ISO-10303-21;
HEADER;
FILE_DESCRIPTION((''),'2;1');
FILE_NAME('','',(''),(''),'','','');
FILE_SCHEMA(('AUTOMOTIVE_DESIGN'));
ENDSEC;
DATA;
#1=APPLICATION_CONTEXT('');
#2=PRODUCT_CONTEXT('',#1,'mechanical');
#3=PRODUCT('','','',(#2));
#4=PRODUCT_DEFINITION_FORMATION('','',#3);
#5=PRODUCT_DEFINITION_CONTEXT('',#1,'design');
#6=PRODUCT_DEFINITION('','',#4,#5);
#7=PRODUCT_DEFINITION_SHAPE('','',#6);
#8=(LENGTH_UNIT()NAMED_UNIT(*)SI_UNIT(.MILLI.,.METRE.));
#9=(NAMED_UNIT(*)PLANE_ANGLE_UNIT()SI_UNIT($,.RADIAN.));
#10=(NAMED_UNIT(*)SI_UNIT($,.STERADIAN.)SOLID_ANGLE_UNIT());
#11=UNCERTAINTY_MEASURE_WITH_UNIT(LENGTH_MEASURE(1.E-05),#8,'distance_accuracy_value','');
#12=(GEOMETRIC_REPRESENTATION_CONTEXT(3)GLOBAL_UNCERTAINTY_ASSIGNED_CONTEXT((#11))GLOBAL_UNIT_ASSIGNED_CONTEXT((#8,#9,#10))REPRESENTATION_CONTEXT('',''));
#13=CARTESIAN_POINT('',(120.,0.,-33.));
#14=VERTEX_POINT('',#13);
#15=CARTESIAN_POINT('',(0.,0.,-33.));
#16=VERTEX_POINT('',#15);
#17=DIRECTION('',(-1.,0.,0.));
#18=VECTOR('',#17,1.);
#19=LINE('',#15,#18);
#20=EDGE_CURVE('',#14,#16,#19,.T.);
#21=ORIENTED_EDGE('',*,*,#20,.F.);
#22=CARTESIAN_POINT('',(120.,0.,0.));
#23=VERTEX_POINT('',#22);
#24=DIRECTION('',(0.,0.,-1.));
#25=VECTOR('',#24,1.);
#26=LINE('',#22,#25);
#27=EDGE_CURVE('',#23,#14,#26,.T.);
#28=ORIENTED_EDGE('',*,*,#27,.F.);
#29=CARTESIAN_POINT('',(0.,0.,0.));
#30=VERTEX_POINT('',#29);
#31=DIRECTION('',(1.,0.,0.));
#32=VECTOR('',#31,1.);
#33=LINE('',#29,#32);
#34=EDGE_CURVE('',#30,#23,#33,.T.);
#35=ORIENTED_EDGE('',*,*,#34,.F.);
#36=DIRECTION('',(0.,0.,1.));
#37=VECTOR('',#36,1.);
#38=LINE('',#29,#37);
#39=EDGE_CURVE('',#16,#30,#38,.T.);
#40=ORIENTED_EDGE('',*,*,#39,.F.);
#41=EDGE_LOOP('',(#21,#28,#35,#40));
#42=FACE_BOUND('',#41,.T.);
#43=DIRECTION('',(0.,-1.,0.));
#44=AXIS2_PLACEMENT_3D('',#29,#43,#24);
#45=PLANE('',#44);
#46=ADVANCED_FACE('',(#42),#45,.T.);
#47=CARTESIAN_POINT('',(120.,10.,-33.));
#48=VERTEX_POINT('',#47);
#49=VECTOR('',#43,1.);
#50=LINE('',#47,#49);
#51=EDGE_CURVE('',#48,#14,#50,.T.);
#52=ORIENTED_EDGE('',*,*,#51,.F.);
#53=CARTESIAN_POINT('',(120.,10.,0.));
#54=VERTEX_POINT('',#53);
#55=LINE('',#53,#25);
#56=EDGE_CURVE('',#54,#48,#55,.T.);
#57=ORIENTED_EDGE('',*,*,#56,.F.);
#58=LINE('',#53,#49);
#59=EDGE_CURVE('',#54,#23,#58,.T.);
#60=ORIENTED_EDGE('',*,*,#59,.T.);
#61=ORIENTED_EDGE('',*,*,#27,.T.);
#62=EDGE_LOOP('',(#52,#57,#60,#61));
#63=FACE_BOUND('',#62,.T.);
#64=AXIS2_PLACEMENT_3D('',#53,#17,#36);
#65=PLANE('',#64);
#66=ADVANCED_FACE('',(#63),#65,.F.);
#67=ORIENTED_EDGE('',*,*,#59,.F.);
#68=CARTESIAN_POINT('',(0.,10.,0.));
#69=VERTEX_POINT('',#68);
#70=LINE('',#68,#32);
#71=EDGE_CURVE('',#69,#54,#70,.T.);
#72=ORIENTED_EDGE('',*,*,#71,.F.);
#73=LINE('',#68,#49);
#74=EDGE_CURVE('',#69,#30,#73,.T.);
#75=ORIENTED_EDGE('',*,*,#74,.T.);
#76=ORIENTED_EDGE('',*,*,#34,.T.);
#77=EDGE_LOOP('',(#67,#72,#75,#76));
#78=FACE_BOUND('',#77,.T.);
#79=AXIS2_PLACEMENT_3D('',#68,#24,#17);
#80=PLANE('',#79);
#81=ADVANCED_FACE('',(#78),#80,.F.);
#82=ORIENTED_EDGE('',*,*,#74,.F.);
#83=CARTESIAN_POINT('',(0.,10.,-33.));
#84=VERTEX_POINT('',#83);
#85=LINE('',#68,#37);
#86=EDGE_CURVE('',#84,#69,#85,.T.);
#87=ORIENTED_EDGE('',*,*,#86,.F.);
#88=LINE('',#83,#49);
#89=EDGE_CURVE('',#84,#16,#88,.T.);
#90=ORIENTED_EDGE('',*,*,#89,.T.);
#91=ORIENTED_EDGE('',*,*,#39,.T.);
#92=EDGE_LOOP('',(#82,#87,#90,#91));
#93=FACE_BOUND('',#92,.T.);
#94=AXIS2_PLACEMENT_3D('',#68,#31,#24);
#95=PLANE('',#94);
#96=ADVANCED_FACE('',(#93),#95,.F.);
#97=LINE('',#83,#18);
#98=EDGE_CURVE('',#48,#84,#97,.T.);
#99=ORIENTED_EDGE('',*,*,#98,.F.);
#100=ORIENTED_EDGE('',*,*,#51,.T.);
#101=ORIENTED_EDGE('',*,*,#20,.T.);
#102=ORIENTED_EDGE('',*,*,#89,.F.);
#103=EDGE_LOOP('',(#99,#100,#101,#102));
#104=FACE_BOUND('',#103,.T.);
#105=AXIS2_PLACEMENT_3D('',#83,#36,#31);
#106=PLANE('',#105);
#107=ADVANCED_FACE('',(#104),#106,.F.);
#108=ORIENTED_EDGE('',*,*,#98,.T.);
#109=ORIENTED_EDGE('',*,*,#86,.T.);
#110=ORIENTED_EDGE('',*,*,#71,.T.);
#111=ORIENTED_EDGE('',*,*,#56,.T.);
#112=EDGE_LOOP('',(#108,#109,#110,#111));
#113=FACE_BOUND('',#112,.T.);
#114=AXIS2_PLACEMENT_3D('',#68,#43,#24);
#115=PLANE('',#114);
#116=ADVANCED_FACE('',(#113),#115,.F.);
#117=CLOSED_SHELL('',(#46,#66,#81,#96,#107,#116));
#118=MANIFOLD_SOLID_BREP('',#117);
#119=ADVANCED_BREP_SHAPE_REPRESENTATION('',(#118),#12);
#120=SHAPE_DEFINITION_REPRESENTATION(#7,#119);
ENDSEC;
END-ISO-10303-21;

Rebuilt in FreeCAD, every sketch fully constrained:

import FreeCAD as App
import Part
import Sketcher
Q = App.Units.Quantity

doc = App.newDocument("Part")
params = doc.addObject("Spreadsheet::Sheet", "Params")
for row, (alias, value) in enumerate([
    ("sketch1_width", "120 mm"),
    ("sketch1_height", "33 mm"),
    ("pad1_length", "10 mm"),
], start=1):
    params.set(f"A{row}", alias)
    params.set(f"B{row}", "=" + value)
    params.setAlias(f"B{row}", alias)

body = doc.addObject("PartDesign::Body", "Body")

# Sketch on XZ plane
sketch1 = body.newObject("Sketcher::SketchObject", "Sketch")
sketch1.AttachmentSupport = (doc.getObject("XZ_Plane"), [""])
sketch1.MapMode = "FlatFace"
sketch1.addGeometry([
    Part.LineSegment(App.Vector(0, -33, 0), App.Vector(0, 0, 0)),
    Part.LineSegment(App.Vector(0, 0, 0), App.Vector(120, 0, 0)),
    Part.LineSegment(App.Vector(120, 0, 0), App.Vector(120, -33, 0)),
    Part.LineSegment(App.Vector(120, -33, 0), App.Vector(0, -33, 0)),
], False)
sketch1.addConstraint([
    Sketcher.Constraint("Coincident", 0, 2, 1, 1),
    Sketcher.Constraint("Coincident", 1, 2, 2, 1),
    Sketcher.Constraint("Coincident", 2, 2, 3, 1),
    Sketcher.Constraint("Coincident", 3, 2, 0, 1),
    Sketcher.Constraint("Vertical", 0),
    Sketcher.Constraint("Horizontal", 1),
    Sketcher.Constraint("Vertical", 2),
    Sketcher.Constraint("Horizontal", 3),
    Sketcher.Constraint("Coincident", 0, 2, -1, 1),
    Sketcher.Constraint("DistanceX", 1, 1, 1, 2, Q("120 mm")),
    Sketcher.Constraint("DistanceY", 0, 1, 0, 2, Q("33 mm")),
])
sketch1.setExpression("Constraints[9]", "Params.sketch1_width")
sketch1.setExpression("Constraints[10]", "Params.sketch1_height")
pad1 = body.newObject("PartDesign::Pad", "Pad")
pad1.Profile = sketch1
pad1.setExpression("Length", "Params.pad1_length")
pad1.Reversed = True

doc.recompute()
